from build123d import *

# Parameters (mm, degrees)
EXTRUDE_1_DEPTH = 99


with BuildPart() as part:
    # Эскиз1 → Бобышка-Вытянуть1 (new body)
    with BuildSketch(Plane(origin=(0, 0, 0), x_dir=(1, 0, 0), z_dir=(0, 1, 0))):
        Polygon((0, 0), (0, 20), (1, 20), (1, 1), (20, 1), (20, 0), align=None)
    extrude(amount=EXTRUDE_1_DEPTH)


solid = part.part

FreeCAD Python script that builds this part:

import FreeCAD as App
import Part
import Sketcher
Q = App.Units.Quantity

doc = App.newDocument("Part")
params = doc.addObject("Spreadsheet::Sheet", "Params")
for row, (alias, value) in enumerate([
    ("sketch1_width", "20 mm"),
    ("sketch1_width2", "19 mm"),
    ("pad1_length", "99 mm"),
], start=1):
    params.set(f"A{row}", alias)
    params.set(f"B{row}", "=" + value)
    params.setAlias(f"B{row}", alias)

body = doc.addObject("PartDesign::Body", "Body")

sketch1 = doc.addObject("Sketcher::SketchObject", "Sketch")
body.addObject(sketch1)
sketch1.AttachmentSupport = (doc.XZ_Plane, [""])
sketch1.MapMode = "FlatFace"
sketch1.addGeometry([
    Part.LineSegment(App.Vector(0, -20, 0), App.Vector(0, 0, 0)),
    Part.LineSegment(App.Vector(0, 0, 0), App.Vector(20, 0, 0)),
    Part.LineSegment(App.Vector(20, 0, 0), App.Vector(20, -1, 0)),
    Part.LineSegment(App.Vector(20, -1, 0), App.Vector(1, -1, 0)),
    Part.LineSegment(App.Vector(1, -1, 0), App.Vector(1, -20, 0)),
    Part.LineSegment(App.Vector(1, -20, 0), App.Vector(0, -20, 0)),
], False)
sketch1.addConstraint([
    Sketcher.Constraint("Coincident", 0, 2, 1, 1),
    Sketcher.Constraint("Coincident", 1, 2, 2, 1),
    Sketcher.Constraint("Coincident", 2, 2, 3, 1),
    Sketcher.Constraint("Coincident", 3, 2, 4, 1),
    Sketcher.Constraint("Coincident", 4, 2, 5, 1),
    Sketcher.Constraint("Coincident", 5, 2, 0, 1),
    Sketcher.Constraint("Vertical", 0),
    Sketcher.Constraint("Horizontal", 1),
    Sketcher.Constraint("Vertical", 2),
    Sketcher.Constraint("Horizontal", 3),
    Sketcher.Constraint("Vertical", 4),
    Sketcher.Constraint("Horizontal", 5),
    Sketcher.Constraint("Coincident", 0, 2, -1, 1),
    Sketcher.Constraint("Equal", 1, 0),
    Sketcher.Constraint("Equal", 5, 2),
    Sketcher.Constraint("DistanceX", 1, 1, 1, 2, Q("20 mm")),
    Sketcher.Constraint("DistanceX", 3, 2, 3, 1, Q("19 mm")),
])
sketch1.setExpression("Constraints[15]", "Params.sketch1_width")
sketch1.setExpression("Constraints[16]", "Params.sketch1_width2")
pad1 = doc.addObject("PartDesign::Pad", "Pad")
body.addObject(pad1)
pad1.Profile = sketch1
pad1.setExpression("Length", "Params.pad1_length")
pad1.Reversed = True

doc.recompute()
